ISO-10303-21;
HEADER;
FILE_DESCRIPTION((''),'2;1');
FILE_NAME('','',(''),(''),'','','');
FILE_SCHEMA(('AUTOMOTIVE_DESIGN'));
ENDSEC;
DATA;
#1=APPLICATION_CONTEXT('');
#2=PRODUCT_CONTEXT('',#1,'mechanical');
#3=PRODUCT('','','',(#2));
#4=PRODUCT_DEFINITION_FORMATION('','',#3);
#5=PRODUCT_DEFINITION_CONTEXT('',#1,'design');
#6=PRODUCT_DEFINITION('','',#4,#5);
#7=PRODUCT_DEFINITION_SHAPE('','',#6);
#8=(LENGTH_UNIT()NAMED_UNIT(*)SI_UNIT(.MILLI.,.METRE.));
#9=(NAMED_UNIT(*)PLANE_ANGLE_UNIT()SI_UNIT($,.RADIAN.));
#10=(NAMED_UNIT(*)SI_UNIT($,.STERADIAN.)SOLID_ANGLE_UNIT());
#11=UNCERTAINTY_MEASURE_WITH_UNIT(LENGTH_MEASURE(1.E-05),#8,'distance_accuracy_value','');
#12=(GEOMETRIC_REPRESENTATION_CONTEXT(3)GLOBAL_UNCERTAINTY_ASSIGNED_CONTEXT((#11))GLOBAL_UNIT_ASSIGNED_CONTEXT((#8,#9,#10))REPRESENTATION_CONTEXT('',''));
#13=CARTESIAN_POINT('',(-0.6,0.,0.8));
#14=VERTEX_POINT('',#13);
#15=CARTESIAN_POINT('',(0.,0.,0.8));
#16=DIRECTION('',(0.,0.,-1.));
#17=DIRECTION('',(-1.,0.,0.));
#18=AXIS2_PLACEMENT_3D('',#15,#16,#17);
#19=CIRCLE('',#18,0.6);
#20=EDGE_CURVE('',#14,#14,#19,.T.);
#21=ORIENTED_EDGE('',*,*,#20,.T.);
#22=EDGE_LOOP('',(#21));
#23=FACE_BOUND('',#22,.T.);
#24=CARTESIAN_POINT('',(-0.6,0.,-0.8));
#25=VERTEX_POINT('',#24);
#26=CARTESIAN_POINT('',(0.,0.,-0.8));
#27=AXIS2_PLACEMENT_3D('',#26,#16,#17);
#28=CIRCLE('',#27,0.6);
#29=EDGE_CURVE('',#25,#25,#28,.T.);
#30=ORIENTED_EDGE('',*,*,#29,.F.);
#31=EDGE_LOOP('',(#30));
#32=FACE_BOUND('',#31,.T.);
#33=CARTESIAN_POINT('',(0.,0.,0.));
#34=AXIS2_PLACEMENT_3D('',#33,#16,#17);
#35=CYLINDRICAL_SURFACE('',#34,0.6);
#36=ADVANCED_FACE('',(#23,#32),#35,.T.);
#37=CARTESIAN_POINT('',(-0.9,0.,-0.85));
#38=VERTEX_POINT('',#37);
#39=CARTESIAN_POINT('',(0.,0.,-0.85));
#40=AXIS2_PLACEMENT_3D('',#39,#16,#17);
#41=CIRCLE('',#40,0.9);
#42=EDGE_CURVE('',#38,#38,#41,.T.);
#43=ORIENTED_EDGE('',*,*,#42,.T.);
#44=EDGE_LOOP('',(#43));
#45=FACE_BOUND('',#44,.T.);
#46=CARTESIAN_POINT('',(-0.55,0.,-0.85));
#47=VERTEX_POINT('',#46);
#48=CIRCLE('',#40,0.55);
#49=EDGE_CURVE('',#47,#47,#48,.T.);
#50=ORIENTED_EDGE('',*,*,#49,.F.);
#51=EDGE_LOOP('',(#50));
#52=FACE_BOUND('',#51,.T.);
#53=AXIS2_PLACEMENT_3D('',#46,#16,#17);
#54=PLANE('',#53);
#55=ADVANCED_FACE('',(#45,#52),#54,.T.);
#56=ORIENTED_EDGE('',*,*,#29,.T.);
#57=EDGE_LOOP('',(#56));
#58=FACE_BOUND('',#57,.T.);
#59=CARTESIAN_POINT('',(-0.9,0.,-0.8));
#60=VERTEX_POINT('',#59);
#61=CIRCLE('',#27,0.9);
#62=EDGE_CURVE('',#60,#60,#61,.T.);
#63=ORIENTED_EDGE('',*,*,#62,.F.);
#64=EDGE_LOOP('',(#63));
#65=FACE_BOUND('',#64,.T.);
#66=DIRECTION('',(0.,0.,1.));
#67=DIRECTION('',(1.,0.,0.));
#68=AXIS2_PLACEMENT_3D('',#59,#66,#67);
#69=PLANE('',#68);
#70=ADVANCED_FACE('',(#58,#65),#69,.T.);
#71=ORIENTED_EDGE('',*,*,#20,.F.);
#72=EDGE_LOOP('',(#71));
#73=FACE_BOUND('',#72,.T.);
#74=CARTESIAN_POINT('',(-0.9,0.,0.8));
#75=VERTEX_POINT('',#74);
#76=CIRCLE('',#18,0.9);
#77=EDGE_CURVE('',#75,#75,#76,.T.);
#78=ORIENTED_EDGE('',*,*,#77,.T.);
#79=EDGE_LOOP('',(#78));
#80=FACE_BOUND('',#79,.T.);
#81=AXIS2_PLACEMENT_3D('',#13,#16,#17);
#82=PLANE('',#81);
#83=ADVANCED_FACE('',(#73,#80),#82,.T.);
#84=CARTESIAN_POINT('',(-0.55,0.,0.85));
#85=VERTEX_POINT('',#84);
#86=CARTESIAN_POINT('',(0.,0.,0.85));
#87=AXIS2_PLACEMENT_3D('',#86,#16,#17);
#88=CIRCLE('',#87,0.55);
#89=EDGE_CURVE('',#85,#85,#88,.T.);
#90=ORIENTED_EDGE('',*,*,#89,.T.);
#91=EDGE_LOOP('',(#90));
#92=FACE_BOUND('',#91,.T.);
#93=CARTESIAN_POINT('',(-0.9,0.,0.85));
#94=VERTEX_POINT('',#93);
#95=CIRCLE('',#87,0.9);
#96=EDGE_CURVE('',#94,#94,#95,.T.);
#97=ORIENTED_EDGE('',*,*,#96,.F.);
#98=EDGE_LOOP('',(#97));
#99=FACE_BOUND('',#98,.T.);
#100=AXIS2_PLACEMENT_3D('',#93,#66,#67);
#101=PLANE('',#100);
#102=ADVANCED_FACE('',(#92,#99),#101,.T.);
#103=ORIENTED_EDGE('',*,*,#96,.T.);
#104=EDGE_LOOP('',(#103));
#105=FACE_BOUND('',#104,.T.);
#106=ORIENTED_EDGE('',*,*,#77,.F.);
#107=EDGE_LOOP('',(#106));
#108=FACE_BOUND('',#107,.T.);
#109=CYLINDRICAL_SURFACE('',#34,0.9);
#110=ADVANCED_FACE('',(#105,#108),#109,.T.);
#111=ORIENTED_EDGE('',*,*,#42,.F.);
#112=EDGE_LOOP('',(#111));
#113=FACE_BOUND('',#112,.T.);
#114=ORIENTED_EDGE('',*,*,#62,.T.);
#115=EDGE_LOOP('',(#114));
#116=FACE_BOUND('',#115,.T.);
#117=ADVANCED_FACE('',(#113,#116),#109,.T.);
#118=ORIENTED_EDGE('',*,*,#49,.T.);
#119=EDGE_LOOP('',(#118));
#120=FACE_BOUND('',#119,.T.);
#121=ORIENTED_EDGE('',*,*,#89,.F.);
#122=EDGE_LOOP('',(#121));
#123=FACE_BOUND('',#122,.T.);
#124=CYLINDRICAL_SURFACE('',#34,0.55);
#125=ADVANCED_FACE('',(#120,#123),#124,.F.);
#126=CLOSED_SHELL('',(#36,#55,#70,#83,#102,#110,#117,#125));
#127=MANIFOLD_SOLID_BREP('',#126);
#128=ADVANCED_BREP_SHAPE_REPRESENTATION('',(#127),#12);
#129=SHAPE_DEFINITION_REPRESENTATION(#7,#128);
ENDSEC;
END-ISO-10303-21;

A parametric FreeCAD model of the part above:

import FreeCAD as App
import Part
import Sketcher
from FreeCAD import Vector

doc = App.newDocument("Part")
body = doc.addObject("PartDesign::Body", "Body")

# Sketch on XZ plane
sketch1 = body.newObject("Sketcher::SketchObject", "Sketch")
sketch1.AttachmentSupport = (doc.getObject("XZ_Plane"), [""])
sketch1.MapMode = "FlatFace"
sketch1.addGeometry([
    Part.LineSegment(Vector(-0.55, -0.85, 0), Vector(-0.9, -0.85, 0)),  # 0
    Part.LineSegment(Vector(-0.9, -0.85, 0), Vector(-0.9, -0.8, 0)),  # 1
    Part.LineSegment(Vector(-0.9, -0.8, 0), Vector(-0.6, -0.8, 0)),  # 2
    Part.LineSegment(Vector(-0.6, -0.8, 0), Vector(-0.6, 0.8, 0)),  # 3
    Part.LineSegment(Vector(-0.6, 0.8, 0), Vector(-0.9, 0.8, 0)),  # 4
    Part.LineSegment(Vector(-0.9, 0.8, 0), Vector(-0.9, 0.85, 0)),  # 5
    Part.LineSegment(Vector(-0.9, 0.85, 0), Vector(-0.55, 0.85, 0)),  # 6
    Part.LineSegment(Vector(-0.55, 0.85, 0), Vector(-0.55, -0.85, 0)),  # 7
], False)
sketch1.addConstraint([
    Sketcher.Constraint("Coincident", 0, 2, 1, 1),
    Sketcher.Constraint("Coincident", 1, 2, 2, 1),
    Sketcher.Constraint("Coincident", 2, 2, 3, 1),
    Sketcher.Constraint("Coincident", 3, 2, 4, 1),
    Sketcher.Constraint("Coincident", 4, 2, 5, 1),
    Sketcher.Constraint("Coincident", 5, 2, 6, 1),
    Sketcher.Constraint("Coincident", 6, 2, 7, 1),
    Sketcher.Constraint("Coincident", 7, 2, 0, 1),
    Sketcher.Constraint("Horizontal", 0),
    Sketcher.Constraint("Vertical", 1),
    Sketcher.Constraint("Horizontal", 2),
    Sketcher.Constraint("Vertical", 3),
    Sketcher.Constraint("Horizontal", 4),
    Sketcher.Constraint("Vertical", 5),
    Sketcher.Constraint("Horizontal", 6),
    Sketcher.Constraint("Vertical", 7),
    Sketcher.Constraint("Symmetric", 1, 2, 4, 2, -1),
    Sketcher.Constraint("Equal", 1, 5),
    Sketcher.Constraint("DistanceX", 2, 1, 2, 2, 0.3),
    Sketcher.Constraint("DistanceY", 3, 1, 3, 2, 1.6),
    Sketcher.Constraint("DistanceY", 7, 2, 7, 1, 1.7),
    Sketcher.Constraint("DistanceX", 0, 2, 0, 1, 0.35),
    Sketcher.Constraint("DistanceX", 0, 2, -1, 1, 0.9),
])
revolution = body.newObject("PartDesign::Revolution", "Revolution")
revolution.Profile = sketch1
revolution.ReferenceAxis = (sketch1, ["V_Axis"])
revolution.Angle = 360

doc.recompute()
